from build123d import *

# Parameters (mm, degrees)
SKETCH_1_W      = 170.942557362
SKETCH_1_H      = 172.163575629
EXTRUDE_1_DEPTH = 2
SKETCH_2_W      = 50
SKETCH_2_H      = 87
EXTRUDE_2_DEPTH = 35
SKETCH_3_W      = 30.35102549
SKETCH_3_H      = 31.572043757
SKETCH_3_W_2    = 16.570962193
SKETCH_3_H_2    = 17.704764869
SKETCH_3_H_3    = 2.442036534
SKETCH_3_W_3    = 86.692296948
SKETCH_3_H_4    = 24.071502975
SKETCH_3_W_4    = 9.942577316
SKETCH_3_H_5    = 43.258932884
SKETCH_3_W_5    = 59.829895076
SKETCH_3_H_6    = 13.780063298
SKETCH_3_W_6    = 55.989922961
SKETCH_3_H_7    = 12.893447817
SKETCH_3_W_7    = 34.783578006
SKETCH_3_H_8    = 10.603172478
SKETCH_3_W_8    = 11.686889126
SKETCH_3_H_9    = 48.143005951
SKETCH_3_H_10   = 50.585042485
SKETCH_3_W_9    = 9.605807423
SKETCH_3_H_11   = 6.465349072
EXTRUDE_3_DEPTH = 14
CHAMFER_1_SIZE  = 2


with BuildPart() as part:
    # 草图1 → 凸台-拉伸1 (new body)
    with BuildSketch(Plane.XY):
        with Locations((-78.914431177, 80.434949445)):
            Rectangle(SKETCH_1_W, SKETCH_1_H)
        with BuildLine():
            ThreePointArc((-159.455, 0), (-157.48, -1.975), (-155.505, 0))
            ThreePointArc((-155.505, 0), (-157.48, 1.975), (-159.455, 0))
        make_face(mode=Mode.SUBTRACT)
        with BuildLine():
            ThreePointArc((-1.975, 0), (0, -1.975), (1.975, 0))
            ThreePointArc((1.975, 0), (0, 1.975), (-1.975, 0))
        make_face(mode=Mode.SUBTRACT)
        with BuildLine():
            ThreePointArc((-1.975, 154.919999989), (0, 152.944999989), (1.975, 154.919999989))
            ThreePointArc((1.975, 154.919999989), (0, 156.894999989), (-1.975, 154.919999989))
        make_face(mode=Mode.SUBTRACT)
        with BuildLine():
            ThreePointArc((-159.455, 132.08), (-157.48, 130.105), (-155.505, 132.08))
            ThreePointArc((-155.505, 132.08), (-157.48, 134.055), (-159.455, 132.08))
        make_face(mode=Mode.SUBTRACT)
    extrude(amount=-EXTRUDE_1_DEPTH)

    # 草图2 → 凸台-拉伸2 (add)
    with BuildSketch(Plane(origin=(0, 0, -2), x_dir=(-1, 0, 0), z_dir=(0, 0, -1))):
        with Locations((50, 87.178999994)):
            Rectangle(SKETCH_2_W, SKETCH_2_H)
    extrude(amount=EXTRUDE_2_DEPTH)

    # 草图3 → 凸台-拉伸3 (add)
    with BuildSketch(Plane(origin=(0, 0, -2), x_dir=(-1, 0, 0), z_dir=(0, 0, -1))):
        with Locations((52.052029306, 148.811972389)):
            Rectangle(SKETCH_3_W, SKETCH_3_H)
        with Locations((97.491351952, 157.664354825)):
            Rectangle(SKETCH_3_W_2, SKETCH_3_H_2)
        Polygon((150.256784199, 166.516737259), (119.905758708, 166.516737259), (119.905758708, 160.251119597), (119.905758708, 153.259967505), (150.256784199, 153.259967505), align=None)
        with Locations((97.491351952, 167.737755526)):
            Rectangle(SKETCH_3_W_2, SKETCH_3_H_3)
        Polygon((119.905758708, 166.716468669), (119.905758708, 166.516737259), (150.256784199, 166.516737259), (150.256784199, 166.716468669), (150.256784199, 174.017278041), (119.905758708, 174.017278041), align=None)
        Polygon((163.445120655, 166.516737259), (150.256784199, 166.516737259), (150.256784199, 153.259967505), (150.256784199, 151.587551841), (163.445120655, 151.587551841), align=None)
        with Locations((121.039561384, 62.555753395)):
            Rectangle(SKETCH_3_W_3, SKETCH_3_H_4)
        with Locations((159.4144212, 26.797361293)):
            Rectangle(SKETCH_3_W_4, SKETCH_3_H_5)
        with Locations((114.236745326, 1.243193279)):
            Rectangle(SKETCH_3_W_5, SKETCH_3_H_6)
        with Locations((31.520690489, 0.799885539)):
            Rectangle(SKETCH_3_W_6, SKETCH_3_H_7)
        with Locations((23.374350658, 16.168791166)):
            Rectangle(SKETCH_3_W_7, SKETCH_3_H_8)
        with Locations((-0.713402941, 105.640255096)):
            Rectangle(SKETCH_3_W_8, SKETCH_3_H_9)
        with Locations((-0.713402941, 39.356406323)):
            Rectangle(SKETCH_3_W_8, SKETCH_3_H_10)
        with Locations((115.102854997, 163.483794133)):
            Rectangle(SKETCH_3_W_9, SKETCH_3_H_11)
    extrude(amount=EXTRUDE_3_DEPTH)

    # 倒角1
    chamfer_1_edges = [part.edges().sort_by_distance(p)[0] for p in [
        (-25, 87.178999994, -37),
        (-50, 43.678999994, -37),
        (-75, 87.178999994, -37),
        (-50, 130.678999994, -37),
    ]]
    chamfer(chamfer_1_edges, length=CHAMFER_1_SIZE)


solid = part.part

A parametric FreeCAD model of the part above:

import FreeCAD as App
import Part
import Sketcher
from FreeCAD import Vector


def edges_at(feature, points):
    """Names of the edges that pass closest to the given points."""
    edges = feature.Shape.Edges
    near = lambda p: min(range(len(edges)), key=lambda i: edges[i].distToShape(Part.Vertex(*p))[0])
    return sorted({f"Edge{near(p) + 1}" for p in points})

doc = App.newDocument("Part")
body = doc.addObject("PartDesign::Body", "Body")

# Sketch on XY plane
sketch1 = body.newObject("Sketcher::SketchObject", "Sketch")
sketch1.AttachmentSupport = (doc.getObject("XY_Plane"), [""])
sketch1.MapMode = "FlatFace"
sketch1.addGeometry([
    Part.LineSegment(Vector(-164.4, 166.5, 0), Vector(-164.4, -5.6, 0)),  # 0
    Part.LineSegment(Vector(-164.4, -5.6, 0), Vector(6.6, -5.6, 0)),  # 1
    Part.LineSegment(Vector(6.6, -5.6, 0), Vector(6.6, 166.5, 0)),  # 2
    Part.LineSegment(Vector(6.6, 166.5, 0), Vector(-164.4, 166.5, 0)),  # 3
    Part.Circle(Vector(-157.5, 0, 0), Vector(0, 0, 1), 2),  # 4
    Part.Circle(Vector(0, 0, 0), Vector(0, 0, 1), 2),  # 5
    Part.Circle(Vector(-157.5, 132.1, 0), Vector(0, 0, 1), 2),  # 6
    Part.Circle(Vector(0, 154.9, 0), Vector(0, 0, 1), 2),  # 7
], False)
sketch1.addConstraint([
    Sketcher.Constraint("Coincident", 0, 2, 1, 1),
    Sketcher.Constraint("Coincident", 1, 2, 2, 1),
    Sketcher.Constraint("Coincident", 2, 2, 3, 1),
    Sketcher.Constraint("Coincident", 3, 2, 0, 1),
    Sketcher.Constraint("Vertical", 0),
    Sketcher.Constraint("Horizontal", 1),
    Sketcher.Constraint("Vertical", 2),
    Sketcher.Constraint("Horizontal", 3),
    Sketcher.Constraint("Coincident", 5, 3, -1, 1),
    Sketcher.Constraint("Equal", 4, 5),
    Sketcher.Constraint("Equal", 5, 6),
    Sketcher.Constraint("Equal", 6, 7),
    Sketcher.Constraint("PointOnObject", 4, 3, -1),
    Sketcher.Constraint("PointOnObject", 7, 3, -2),
    Sketcher.Constraint("Vertical", 4, 3, 6, 3),
    Sketcher.Constraint("Diameter", 4, 3.95),
    Sketcher.Constraint("DistanceX", 4, 3, -1, 1, 157.48),
    Sketcher.Constraint("DistanceY", -1, 1, 6, 3, 132.08),
    Sketcher.Constraint("DistanceY", -1, 1, 7, 3, 154.92),
    Sketcher.Constraint("DistanceX", 1, 1, 1, 2, 170.942557),
    Sketcher.Constraint("DistanceY", 0, 2, 0, 1, 172.163576),
    Sketcher.Constraint("DistanceX", 0, 2, -1, 1, 164.38571),
    Sketcher.Constraint("DistanceY", 0, 2, -1, 1, 5.646838),
])
pad1 = body.newObject("PartDesign::Pad", "Pad")
pad1.Profile = sketch1
pad1.Length = 2
pad1.Reversed = True

# Sketch on XY plane
sketch2 = body.newObject("Sketcher::SketchObject", "Sketch001")
sketch2.AttachmentSupport = (doc.getObject("XY_Plane"), [""])
sketch2.MapMode = "FlatFace"
sketch2.AttachmentOffset = App.Placement(Vector(0, 0, -2), App.Rotation())
sketch2.addGeometry([
    Part.LineSegment(Vector(-25, 131, 0), Vector(-25, 44, 0)),
    Part.LineSegment(Vector(-25, 44, 0), Vector(-75, 44, 0)),
    Part.LineSegment(Vector(-75, 44, 0), Vector(-75, 131, 0)),
    Part.LineSegment(Vector(-75, 131, 0), Vector(-25, 131, 0)),
], False)
sketch2.addConstraint([
    Sketcher.Constraint("Coincident", 0, 2, 1, 1),
    Sketcher.Constraint("Coincident", 1, 2, 2, 1),
    Sketcher.Constraint("Coincident", 2, 2, 3, 1),
    Sketcher.Constraint("Coincident", 3, 2, 0, 1),
    Sketcher.Constraint("Vertical", 0),
    Sketcher.Constraint("Horizontal", 1),
    Sketcher.Constraint("Vertical", 2),
    Sketcher.Constraint("Horizontal", 3),
    Sketcher.Constraint("DistanceX", 1, 2, 1, 1, 50.0),
    Sketcher.Constraint("DistanceY", 0, 2, 0, 1, 87.0),
    Sketcher.Constraint("DistanceX", 0, 2, -1, 1, 25.0),
    Sketcher.Constraint("DistanceY", -1, 1, 0, 2, 43.679),
])
pad2 = body.newObject("PartDesign::Pad", "Pad001")
pad2.Profile = sketch2
pad2.Length = 35
pad2.Reversed = True

# Sketch on XY plane
sketch3 = body.newObject("Sketcher::SketchObject", "Sketch002")
sketch3.AttachmentSupport = (doc.getObject("XY_Plane"), [""])
sketch3.MapMode = "FlatFace"
sketch3.AttachmentOffset = App.Placement(Vector(0, 0, -2), App.Rotation())
sketch3.addGeometry([
    Part.LineSegment(Vector(-36.9, 164.6, 0), Vector(-36.9, 133, 0)),  # 0
    Part.LineSegment(Vector(-36.9, 133, 0), Vector(-67.2, 133, 0)),  # 1
    Part.LineSegment(Vector(-67.2, 133, 0), Vector(-67.2, 164.6, 0)),  # 2
    Part.LineSegment(Vector(-67.2, 164.6, 0), Vector(-36.9, 164.6, 0)),  # 3
    Part.LineSegment(Vector(-89.2, 148.8, 0), Vector(-105.8, 148.8, 0)),  # 4
    Part.LineSegment(Vector(-105.8, 148.8, 0), Vector(-105.8, 169, 0)),  # 5
    Part.LineSegment(Vector(-105.8, 169, 0), Vector(-89.2, 169, 0)),  # 6
    Part.LineSegment(Vector(-89.2, 169, 0), Vector(-89.2, 148.8, 0)),  # 7
    Part.LineSegment(Vector(-119.9, 153.3, 0), Vector(-150.3, 153.3, 0)),  # 8
    Part.LineSegment(Vector(-150.3, 153.3, 0), Vector(-150.3, 151.6, 0)),  # 9
    Part.LineSegment(Vector(-150.3, 151.6, 0), Vector(-163.4, 151.6, 0)),  # 10
    Part.LineSegment(Vector(-163.4, 151.6, 0), Vector(-163.4, 166.5, 0)),  # 11
    Part.LineSegment(Vector(-163.4, 166.5, 0), Vector(-150.3, 166.5, 0)),  # 12
    Part.LineSegment(Vector(-150.3, 166.5, 0), Vector(-150.3, 174, 0)),  # 13
    Part.LineSegment(Vector(-150.3, 174, 0), Vector(-119.9, 174, 0)),  # 14
    Part.LineSegment(Vector(-119.9, 174, 0), Vector(-119.9, 166.7, 0)),  # 15
    Part.LineSegment(Vector(-119.9, 166.7, 0), Vector(-110.3, 166.7, 0)),  # 16
    Part.LineSegment(Vector(-110.3, 166.7, 0), Vector(-110.3, 160.3, 0)),  # 17
    Part.LineSegment(Vector(-110.3, 160.3, 0), Vector(-119.9, 160.3, 0)),  # 18
    Part.LineSegment(Vector(-119.9, 160.3, 0), Vector(-119.9, 153.3, 0)),  # 19
    Part.LineSegment(Vector(-77.7, 74.6, 0), Vector(-77.7, 50.5, 0)),  # 20
    Part.LineSegment(Vector(-77.7, 50.5, 0), Vector(-164.4, 50.5, 0)),  # 21
    Part.LineSegment(Vector(-164.4, 50.5, 0), Vector(-164.4, 74.6, 0)),  # 22
    Part.LineSegment(Vector(-164.4, 74.6, 0), Vector(-77.7, 74.6, 0)),  # 23
    Part.LineSegment(Vector(-154.4, 48.4, 0), Vector(-154.4, 5.2, 0)),  # 24
    Part.LineSegment(Vector(-154.4, 5.2, 0), Vector(-164.4, 5.2, 0)),  # 25
    Part.LineSegment(Vector(-164.4, 5.2, 0), Vector(-164.4, 48.4, 0)),  # 26
    Part.LineSegment(Vector(-164.4, 48.4, 0), Vector(-154.4, 48.4, 0)),  # 27
    Part.LineSegment(Vector(-84.3, 8.1, 0), Vector(-84.3, -5.6, 0)),  # 28
    Part.LineSegment(Vector(-84.3, -5.6, 0), Vector(-144.2, -5.6, 0)),  # 29
    Part.LineSegment(Vector(-144.2, -5.6, 0), Vector(-144.2, 8.1, 0)),  # 30
    Part.LineSegment(Vector(-144.2, 8.1, 0), Vector(-84.3, 8.1, 0)),  # 31
    Part.LineSegment(Vector(-3.5, 7.2, 0), Vector(-3.5, -5.6, 0)),  # 32
    Part.LineSegment(Vector(-3.5, -5.6, 0), Vector(-59.5, -5.6, 0)),  # 33
    Part.LineSegment(Vector(-59.5, -5.6, 0), Vector(-59.5, 7.2, 0)),  # 34
    Part.LineSegment(Vector(-59.5, 7.2, 0), Vector(-3.5, 7.2, 0)),  # 35
    Part.LineSegment(Vector(-6, 21.5, 0), Vector(-6, 10.9, 0)),  # 36
    Part.LineSegment(Vector(-6, 10.9, 0), Vector(-40.8, 10.9, 0)),  # 37
    Part.LineSegment(Vector(-40.8, 10.9, 0), Vector(-40.8, 21.5, 0)),  # 38
    Part.LineSegment(Vector(-40.8, 21.5, 0), Vector(-6, 21.5, 0)),  # 39
    Part.LineSegment(Vector(6.6, 129.7, 0), Vector(6.6, 81.6, 0)),  # 40
    Part.LineSegment(Vector(6.6, 81.6, 0), Vector(-5.1, 81.6, 0)),  # 41
    Part.LineSegment(Vector(-5.1, 81.6, 0), Vector(-5.1, 129.7, 0)),  # 42
    Part.LineSegment(Vector(-5.1, 129.7, 0), Vector(6.6, 129.7, 0)),  # 43
    Part.LineSegment(Vector(6.6, 64.6, 0), Vector(6.6, 14.1, 0)),  # 44
    Part.LineSegment(Vector(6.6, 14.1, 0), Vector(-5.1, 14.1, 0)),  # 45
    Part.LineSegment(Vector(-5.1, 14.1, 0), Vector(-5.1, 64.6, 0)),  # 46
    Part.LineSegment(Vector(-5.1, 64.6, 0), Vector(6.6, 64.6, 0)),  # 47
], False)
sketch3.addConstraint([
    Sketcher.Constraint("Coincident", 0, 2, 1, 1),
    Sketcher.Constraint("Coincident", 1, 2, 2, 1),
    Sketcher.Constraint("Coincident", 2, 2, 3, 1),
    Sketcher.Constraint("Coincident", 3, 2, 0, 1),
    Sketcher.Constraint("Coincident", 4, 2, 5, 1),
    Sketcher.Constraint("Coincident", 5, 2, 6, 1),
    Sketcher.Constraint("Coincident", 6, 2, 7, 1),
    Sketcher.Constraint("Coincident", 7, 2, 4, 1),
    Sketcher.Constraint("Coincident", 8, 2, 9, 1),
    Sketcher.Constraint("Coincident", 9, 2, 10, 1),
    Sketcher.Constraint("Coincident", 10, 2, 11, 1),
    Sketcher.Constraint("Coincident", 11, 2, 12, 1),
    Sketcher.Constraint("Coincident", 12, 2, 13, 1),
    Sketcher.Constraint("Coincident", 13, 2, 14, 1),
    Sketcher.Constraint("Coincident", 14, 2, 15, 1),
    Sketcher.Constraint("Coincident", 15, 2, 16, 1),
    Sketcher.Constraint("Coincident", 16, 2, 17, 1),
    Sketcher.Constraint("Coincident", 17, 2, 18, 1),
    Sketcher.Constraint("Coincident", 18, 2, 19, 1),
    Sketcher.Constraint("Coincident", 19, 2, 8, 1),
    Sketcher.Constraint("Coincident", 20, 2, 21, 1),
    Sketcher.Constraint("Coincident", 21, 2, 22, 1),
    Sketcher.Constraint("Coincident", 22, 2, 23, 1),
    Sketcher.Constraint("Coincident", 23, 2, 20, 1),
    Sketcher.Constraint("Coincident", 24, 2, 25, 1),
    Sketcher.Constraint("Coincident", 25, 2, 26, 1),
    Sketcher.Constraint("Coincident", 26, 2, 27, 1),
    Sketcher.Constraint("Coincident", 27, 2, 24, 1),
    Sketcher.Constraint("Coincident", 28, 2, 29, 1),
    Sketcher.Constraint("Coincident", 29, 2, 30, 1),
    Sketcher.Constraint("Coincident", 30, 2, 31, 1),
    Sketcher.Constraint("Coincident", 31, 2, 28, 1),
    Sketcher.Constraint("Coincident", 32, 2, 33, 1),
    Sketcher.Constraint("Coincident", 33, 2, 34, 1),
    Sketcher.Constraint("Coincident", 34, 2, 35, 1),
    Sketcher.Constraint("Coincident", 35, 2, 32, 1),
    Sketcher.Constraint("Coincident", 36, 2, 37, 1),
    Sketcher.Constraint("Coincident", 37, 2, 38, 1),
    Sketcher.Constraint("Coincident", 38, 2, 39, 1),
    Sketcher.Constraint("Coincident", 39, 2, 36, 1),
    Sketcher.Constraint("Coincident", 40, 2, 41, 1),
    Sketcher.Constraint("Coincident", 41, 2, 42, 1),
    Sketcher.Constraint("Coincident", 42, 2, 43, 1),
    Sketcher.Constraint("Coincident", 43, 2, 40, 1),
    Sketcher.Constraint("Coincident", 44, 2, 45, 1),
    Sketcher.Constraint("Coincident", 45, 2, 46, 1),
    Sketcher.Constraint("Coincident", 46, 2, 47, 1),
    Sketcher.Constraint("Coincident", 47, 2, 44, 1),
    Sketcher.Constraint("Vertical", 0),
    Sketcher.Constraint("Horizontal", 1),
    Sketcher.Constraint("Vertical", 2),
    Sketcher.Constraint("Horizontal", 3),
    Sketcher.Constraint("Horizontal", 4),
    Sketcher.Constraint("Vertical", 5),
    Sketcher.Constraint("Horizontal", 6),
    Sketcher.Constraint("Vertical", 7),
    Sketcher.Constraint("Horizontal", 8),
    Sketcher.Constraint("Vertical", 9),
    Sketcher.Constraint("Horizontal", 10),
    Sketcher.Constraint("Vertical", 11),
    Sketcher.Constraint("Horizontal", 12),
    Sketcher.Constraint("Vertical", 13),
    Sketcher.Constraint("Horizontal", 14),
    Sketcher.Constraint("Vertical", 15),
    Sketcher.Constraint("Horizontal", 16),
    Sketcher.Constraint("Vertical", 17),
    Sketcher.Constraint("Horizontal", 18),
    Sketcher.Constraint("Vertical", 19),
    Sketcher.Constraint("Vertical", 20),
    Sketcher.Constraint("Horizontal", 21),
    Sketcher.Constraint("Vertical", 22),
    Sketcher.Constraint("Horizontal", 23),
    Sketcher.Constraint("Vertical", 24),
    Sketcher.Constraint("Horizontal", 25),
    Sketcher.Constraint("Vertical", 26),
    Sketcher.Constraint("Horizontal", 27),
    Sketcher.Constraint("Vertical", 28),
    Sketcher.Constraint("Horizontal", 29),
    Sketcher.Constraint("Vertical", 30),
    Sketcher.Constraint("Horizontal", 31),
    Sketcher.Constraint("Vertical", 32),
    Sketcher.Constraint("Horizontal", 33),
    Sketcher.Constraint("Vertical", 34),
    Sketcher.Constraint("Horizontal", 35),
    Sketcher.Constraint("Vertical", 36),
    Sketcher.Constraint("Horizontal", 37),
    Sketcher.Constraint("Vertical", 38),
    Sketcher.Constraint("Horizontal", 39),
    Sketcher.Constraint("Vertical", 40),
    Sketcher.Constraint("Horizontal", 41),
    Sketcher.Constraint("Vertical", 42),
    Sketcher.Constraint("Horizontal", 43),
    Sketcher.Constraint("Vertical", 44),
    Sketcher.Constraint("Horizontal", 45),
    Sketcher.Constraint("Vertical", 46),
    Sketcher.Constraint("Horizontal", 47),
    Sketcher.Constraint("Horizontal", 29, 2, 32, 2),
    Sketcher.Constraint("Vertical", 9, 2, 12, 2),
    Sketcher.Constraint("Vertical", 15, 2, 18, 2),
    Sketcher.Constraint("Vertical", 22, 2, 25, 2),
    Sketcher.Constraint("Vertical", 43, 2, 44, 2),
    Sketcher.Constraint("Vertical", 42, 2, 45, 2),
    Sketcher.Constraint("Equal", 3, 8),
    Sketcher.Constraint("DistanceY", -1, 1, 20, 2, 50.520002),
    Sketcher.Constraint("DistanceY", 5, 1, 5, 2, 20.146801),
    Sketcher.Constraint("DistanceX", 37, 2, 37, 1, 34.783578),
    Sketcher.Constraint("DistanceX", 41, 2, 41, 1, 11.686889),
    Sketcher.Constraint("DistanceY", 13, 1, 13, 2, 7.500541),
    Sketcher.Constraint("DistanceY", 15, 2, 15, 1, 7.300809),
    Sketcher.Constraint("DistanceY", 17, 2, 17, 1, 6.465349),
    Sketcher.Constraint("DistanceY", 19, 2, 15, 2, 13.456501),
    Sketcher.Constraint("DistanceY", 40, 2, 0, 2, 51.457198),
    Sketcher.Constraint("DistanceX", 38, 2, 41, 2, 35.636098),
    Sketcher.Constraint("DistanceX", 1, 2, 42, 2, 62.0975),
    Sketcher.Constraint("DistanceX", 1, 2, 1, 1, 30.351025),
    Sketcher.Constraint("DistanceX", 4, 2, 4, 1, 16.570962),
    Sketcher.Constraint("DistanceX", 10, 2, 10, 1, 13.188336),
    Sketcher.Constraint("DistanceX", 16, 1, 16, 2, 9.605807),
    Sketcher.Constraint("DistanceX", 21, 2, 21, 1, 86.692297),
    Sketcher.Constraint("DistanceX", 25, 2, 25, 1, 9.942577),
    Sketcher.Constraint("DistanceX", 29, 2, 29, 1, 59.829895),
    Sketcher.Constraint("DistanceX", 33, 2, 33, 1, 55.989923),
    Sketcher.Constraint("DistanceY", 0, 2, 0, 1, 31.572044),
    Sketcher.Constraint("DistanceY", 9, 2, 9, 1, 1.672416),
    Sketcher.Constraint("DistanceY", 20, 2, 20, 1, 24.071503),
    Sketcher.Constraint("DistanceY", 24, 2, 24, 1, 43.258933),
    Sketcher.Constraint("DistanceY", 28, 2, 28, 1, 13.780063),
    Sketcher.Constraint("DistanceY", 32, 2, 32, 1, 12.893448),
    Sketcher.Constraint("DistanceY", 36, 2, 36, 1, 10.603172),
    Sketcher.Constraint("DistanceY", 40, 2, 40, 1, 48.143006),
    Sketcher.Constraint("DistanceY", 44, 2, 44, 1, 50.585042),
    Sketcher.Constraint("DistanceY", -1, 1, 0, 2, 133.025951),
    Sketcher.Constraint("DistanceX", 6, 2, -1, 1, 89.205871),
    Sketcher.Constraint("DistanceY", -1, 1, 9, 2, 151.587552),
    Sketcher.Constraint("DistanceX", 10, 2, -1, 1, 163.445121),
    Sketcher.Constraint("DistanceX", 21, 2, -1, 1, 164.38571),
    Sketcher.Constraint("DistanceY", 28, 2, -1, 1, 5.646838),
    Sketcher.Constraint("DistanceX", 32, 2, -1, 1, 3.525729),
    Sketcher.Constraint("DistanceX", 36, 2, -1, 1, 5.982562),
    Sketcher.Constraint("DistanceY", 4, 2, 2, 2, 15.786022),
    Sketcher.Constraint("DistanceY", 24, 2, 22, 2, 69.42361),
    Sketcher.Constraint("DistanceX", 24, 2, 29, 2, 10.29144),
    Sketcher.Constraint("DistanceY", 31, 2, 36, 2, 2.73398),
    Sketcher.Constraint("DistanceY", 36, 2, 44, 2, 3.19668),
])
pad3 = body.newObject("PartDesign::Pad", "Pad002")
pad3.Profile = sketch3
pad3.Length = 14
pad3.Reversed = True
doc.recompute()

chamfer = body.newObject("PartDesign::Chamfer", "Chamfer")
chamfer.Base = (pad3, edges_at(pad3, [
    (-25, 87.179, -37),
    (-50, 43.679, -37),
    (-75, 87.179, -37),
    (-50, 130.679, -37),
]))
chamfer.Size = 2

doc.recompute()
